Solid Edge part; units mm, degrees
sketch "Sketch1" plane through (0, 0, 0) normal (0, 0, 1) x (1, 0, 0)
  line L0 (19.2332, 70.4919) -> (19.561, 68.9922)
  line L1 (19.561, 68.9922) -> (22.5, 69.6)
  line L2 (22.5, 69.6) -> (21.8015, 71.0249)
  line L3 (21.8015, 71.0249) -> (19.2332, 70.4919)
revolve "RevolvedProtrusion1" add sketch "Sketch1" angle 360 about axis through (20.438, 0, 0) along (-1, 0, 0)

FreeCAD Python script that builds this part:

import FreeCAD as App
import Part
import Sketcher
Q = App.Units.Quantity

doc = App.newDocument("Part")
body = doc.addObject("PartDesign::Body", "Body")

# Sketch on XY plane
sketch1 = doc.addObject("Sketcher::SketchObject", "Sketch")
body.addObject(sketch1)
sketch1.AttachmentSupport = (doc.XY_Plane, [""])
sketch1.MapMode = "FlatFace"
sketch1.addGeometry([
    Part.LineSegment(App.Vector(21.8015, 71.0249, 0), App.Vector(19.2332, 70.4919, 0)),
    Part.LineSegment(App.Vector(19.2332, 70.4919, 0), App.Vector(19.561, 68.9922, 0)),
    Part.LineSegment(App.Vector(19.561, 68.9922, 0), App.Vector(22.5, 69.6, 0)),
    Part.LineSegment(App.Vector(22.5, 69.6, 0), App.Vector(21.8015, 71.0249, 0)),
], False)
sketch1.addConstraint([
    Sketcher.Constraint("Coincident", 0, 2, 1, 1),
    Sketcher.Constraint("Coincident", 1, 2, 2, 1),
    Sketcher.Constraint("Coincident", 2, 2, 3, 1),
    Sketcher.Constraint("Coincident", 3, 2, 0, 1),
    Sketcher.Constraint("DistanceX", -1, 1, 2, 2, 22.5),
    Sketcher.Constraint("DistanceY", -1, 1, 2, 2, 69.6),
    Sketcher.Constraint("Angle", 1, Q("-77.6704 deg")),
    Sketcher.Constraint("Distance", 0, 2.623),
    Sketcher.Constraint("Distance", 1, 1.535),
    Sketcher.Constraint("Distance", 3, 1.587),
    Sketcher.Constraint("DistanceY", -1, 1, 0, 2, 70.492),
    Sketcher.Constraint("DistanceX", -1, 1, 1, 2, 19.561),
])
revolution = doc.addObject("PartDesign::Revolution", "Revolution")
body.addObject(revolution)
revolution.Profile = sketch1
revolution.ReferenceAxis = (sketch1, ["H_Axis"])
revolution.Angle = 360

doc.recompute()
